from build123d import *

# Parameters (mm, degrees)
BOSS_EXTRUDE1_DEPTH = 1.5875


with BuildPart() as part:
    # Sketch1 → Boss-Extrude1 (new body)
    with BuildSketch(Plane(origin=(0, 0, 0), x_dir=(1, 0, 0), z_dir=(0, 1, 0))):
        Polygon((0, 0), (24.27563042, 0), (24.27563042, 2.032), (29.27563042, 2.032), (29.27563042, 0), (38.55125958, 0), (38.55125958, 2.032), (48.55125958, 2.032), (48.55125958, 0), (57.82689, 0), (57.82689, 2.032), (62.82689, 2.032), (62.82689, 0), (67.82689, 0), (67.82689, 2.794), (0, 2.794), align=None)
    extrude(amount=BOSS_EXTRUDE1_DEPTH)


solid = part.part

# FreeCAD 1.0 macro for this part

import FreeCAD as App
import Part
import Sketcher

V = App.Vector
Q = App.Units.Quantity


def add_polygon(sketch, points):
    """Adds a closed chain of lines whose ends are joined by coincident constraints."""
    first, n = sketch.GeometryCount, len(points)
    for a, b in zip(points, points[1:] + points[:1]):
        sketch.addGeometry(Part.LineSegment(App.Vector(*a, 0), App.Vector(*b, 0)), False)
    for i in range(n):
        sketch.addConstraint(Sketcher.Constraint("Coincident", first + i, 2, first + (i + 1) % n, 1))

doc = App.newDocument("Part")
params = doc.addObject("Spreadsheet::Sheet", "Params")
for row, (alias, value) in enumerate([
    ("sketch1_height", "0.08 in"),
    ("sketch1_height2", "0.11 in"),
    ("pad1_length", "0.0625 in"),
], start=1):
    params.set(f"A{row}", alias)
    params.set(f"B{row}", "=" + value)
    params.setAlias(f"B{row}", alias)

body = doc.addObject("PartDesign::Body", "Body")

# Sketch on XZ plane
sketch1 = body.newObject("Sketcher::SketchObject", "Sketch")
sketch1.AttachmentSupport = (doc.getObject("XZ_Plane"), [""])
sketch1.MapMode = "FlatFace"
add_polygon(sketch1, [(0, 0), (24.3, 0), (24.3, -2), (29.3, -2), (29.3, 0), (38.6, 0), (38.6, -2), (48.6, -2), (48.6, 0), (57.8, 0), (57.8, -2), (62.8, -2), (62.8, 0), (67.8, 0), (67.8, -2.8), (0, -2.8)])  # lines 0-15
sketch1.addConstraint([
    Sketcher.Constraint("Horizontal", 0),
    Sketcher.Constraint("Vertical", 1),
    Sketcher.Constraint("Horizontal", 2),
    Sketcher.Constraint("Vertical", 3),
    Sketcher.Constraint("Horizontal", 4),
    Sketcher.Constraint("Vertical", 5),
    Sketcher.Constraint("Horizontal", 6),
    Sketcher.Constraint("Vertical", 7),
    Sketcher.Constraint("Horizontal", 8),
    Sketcher.Constraint("Vertical", 9),
    Sketcher.Constraint("Horizontal", 10),
    Sketcher.Constraint("Vertical", 11),
    Sketcher.Constraint("Horizontal", 12),
    Sketcher.Constraint("Vertical", 13),
    Sketcher.Constraint("Horizontal", 14),
    Sketcher.Constraint("Vertical", 15),
    Sketcher.Constraint("Coincident", 15, 2, -1, 1),
    Sketcher.Constraint("PointOnObject", 3, 2, -1),
    Sketcher.Constraint("PointOnObject", 7, 2, -1),
    Sketcher.Constraint("PointOnObject", 11, 2, -1),
    Sketcher.Constraint("Horizontal", 2, 2, 5, 2),
    Sketcher.Constraint("Horizontal", 6, 2, 9, 2),
    Sketcher.Constraint("Equal", 4, 8),
    Sketcher.Constraint("Equal", 2, 10),
    Sketcher.Constraint("Equal", 10, 12),
    Sketcher.Constraint("DistanceY", 1, 2, 1, 1, Q("0.08 in")),
    Sketcher.Constraint("DistanceY", 13, 2, 13, 1, Q("0.11 in")),
    Sketcher.Constraint("DistanceX", 2, 1, 2, 2, 5.0),
    Sketcher.Constraint("DistanceX", 6, 1, 6, 2, 10.0),
    Sketcher.Constraint("DistanceX", 0, 1, 0, 2, 24.27563),
    Sketcher.Constraint("DistanceX", 4, 1, 4, 2, 9.275629),
])
sketch1.setExpression("Constraints[41]", "Params.sketch1_height")
sketch1.setExpression("Constraints[42]", "Params.sketch1_height2")
pad1 = body.newObject("PartDesign::Pad", "Pad")
pad1.Profile = sketch1
pad1.setExpression("Length", "Params.pad1_length")
pad1.Reversed = True

doc.recompute()
